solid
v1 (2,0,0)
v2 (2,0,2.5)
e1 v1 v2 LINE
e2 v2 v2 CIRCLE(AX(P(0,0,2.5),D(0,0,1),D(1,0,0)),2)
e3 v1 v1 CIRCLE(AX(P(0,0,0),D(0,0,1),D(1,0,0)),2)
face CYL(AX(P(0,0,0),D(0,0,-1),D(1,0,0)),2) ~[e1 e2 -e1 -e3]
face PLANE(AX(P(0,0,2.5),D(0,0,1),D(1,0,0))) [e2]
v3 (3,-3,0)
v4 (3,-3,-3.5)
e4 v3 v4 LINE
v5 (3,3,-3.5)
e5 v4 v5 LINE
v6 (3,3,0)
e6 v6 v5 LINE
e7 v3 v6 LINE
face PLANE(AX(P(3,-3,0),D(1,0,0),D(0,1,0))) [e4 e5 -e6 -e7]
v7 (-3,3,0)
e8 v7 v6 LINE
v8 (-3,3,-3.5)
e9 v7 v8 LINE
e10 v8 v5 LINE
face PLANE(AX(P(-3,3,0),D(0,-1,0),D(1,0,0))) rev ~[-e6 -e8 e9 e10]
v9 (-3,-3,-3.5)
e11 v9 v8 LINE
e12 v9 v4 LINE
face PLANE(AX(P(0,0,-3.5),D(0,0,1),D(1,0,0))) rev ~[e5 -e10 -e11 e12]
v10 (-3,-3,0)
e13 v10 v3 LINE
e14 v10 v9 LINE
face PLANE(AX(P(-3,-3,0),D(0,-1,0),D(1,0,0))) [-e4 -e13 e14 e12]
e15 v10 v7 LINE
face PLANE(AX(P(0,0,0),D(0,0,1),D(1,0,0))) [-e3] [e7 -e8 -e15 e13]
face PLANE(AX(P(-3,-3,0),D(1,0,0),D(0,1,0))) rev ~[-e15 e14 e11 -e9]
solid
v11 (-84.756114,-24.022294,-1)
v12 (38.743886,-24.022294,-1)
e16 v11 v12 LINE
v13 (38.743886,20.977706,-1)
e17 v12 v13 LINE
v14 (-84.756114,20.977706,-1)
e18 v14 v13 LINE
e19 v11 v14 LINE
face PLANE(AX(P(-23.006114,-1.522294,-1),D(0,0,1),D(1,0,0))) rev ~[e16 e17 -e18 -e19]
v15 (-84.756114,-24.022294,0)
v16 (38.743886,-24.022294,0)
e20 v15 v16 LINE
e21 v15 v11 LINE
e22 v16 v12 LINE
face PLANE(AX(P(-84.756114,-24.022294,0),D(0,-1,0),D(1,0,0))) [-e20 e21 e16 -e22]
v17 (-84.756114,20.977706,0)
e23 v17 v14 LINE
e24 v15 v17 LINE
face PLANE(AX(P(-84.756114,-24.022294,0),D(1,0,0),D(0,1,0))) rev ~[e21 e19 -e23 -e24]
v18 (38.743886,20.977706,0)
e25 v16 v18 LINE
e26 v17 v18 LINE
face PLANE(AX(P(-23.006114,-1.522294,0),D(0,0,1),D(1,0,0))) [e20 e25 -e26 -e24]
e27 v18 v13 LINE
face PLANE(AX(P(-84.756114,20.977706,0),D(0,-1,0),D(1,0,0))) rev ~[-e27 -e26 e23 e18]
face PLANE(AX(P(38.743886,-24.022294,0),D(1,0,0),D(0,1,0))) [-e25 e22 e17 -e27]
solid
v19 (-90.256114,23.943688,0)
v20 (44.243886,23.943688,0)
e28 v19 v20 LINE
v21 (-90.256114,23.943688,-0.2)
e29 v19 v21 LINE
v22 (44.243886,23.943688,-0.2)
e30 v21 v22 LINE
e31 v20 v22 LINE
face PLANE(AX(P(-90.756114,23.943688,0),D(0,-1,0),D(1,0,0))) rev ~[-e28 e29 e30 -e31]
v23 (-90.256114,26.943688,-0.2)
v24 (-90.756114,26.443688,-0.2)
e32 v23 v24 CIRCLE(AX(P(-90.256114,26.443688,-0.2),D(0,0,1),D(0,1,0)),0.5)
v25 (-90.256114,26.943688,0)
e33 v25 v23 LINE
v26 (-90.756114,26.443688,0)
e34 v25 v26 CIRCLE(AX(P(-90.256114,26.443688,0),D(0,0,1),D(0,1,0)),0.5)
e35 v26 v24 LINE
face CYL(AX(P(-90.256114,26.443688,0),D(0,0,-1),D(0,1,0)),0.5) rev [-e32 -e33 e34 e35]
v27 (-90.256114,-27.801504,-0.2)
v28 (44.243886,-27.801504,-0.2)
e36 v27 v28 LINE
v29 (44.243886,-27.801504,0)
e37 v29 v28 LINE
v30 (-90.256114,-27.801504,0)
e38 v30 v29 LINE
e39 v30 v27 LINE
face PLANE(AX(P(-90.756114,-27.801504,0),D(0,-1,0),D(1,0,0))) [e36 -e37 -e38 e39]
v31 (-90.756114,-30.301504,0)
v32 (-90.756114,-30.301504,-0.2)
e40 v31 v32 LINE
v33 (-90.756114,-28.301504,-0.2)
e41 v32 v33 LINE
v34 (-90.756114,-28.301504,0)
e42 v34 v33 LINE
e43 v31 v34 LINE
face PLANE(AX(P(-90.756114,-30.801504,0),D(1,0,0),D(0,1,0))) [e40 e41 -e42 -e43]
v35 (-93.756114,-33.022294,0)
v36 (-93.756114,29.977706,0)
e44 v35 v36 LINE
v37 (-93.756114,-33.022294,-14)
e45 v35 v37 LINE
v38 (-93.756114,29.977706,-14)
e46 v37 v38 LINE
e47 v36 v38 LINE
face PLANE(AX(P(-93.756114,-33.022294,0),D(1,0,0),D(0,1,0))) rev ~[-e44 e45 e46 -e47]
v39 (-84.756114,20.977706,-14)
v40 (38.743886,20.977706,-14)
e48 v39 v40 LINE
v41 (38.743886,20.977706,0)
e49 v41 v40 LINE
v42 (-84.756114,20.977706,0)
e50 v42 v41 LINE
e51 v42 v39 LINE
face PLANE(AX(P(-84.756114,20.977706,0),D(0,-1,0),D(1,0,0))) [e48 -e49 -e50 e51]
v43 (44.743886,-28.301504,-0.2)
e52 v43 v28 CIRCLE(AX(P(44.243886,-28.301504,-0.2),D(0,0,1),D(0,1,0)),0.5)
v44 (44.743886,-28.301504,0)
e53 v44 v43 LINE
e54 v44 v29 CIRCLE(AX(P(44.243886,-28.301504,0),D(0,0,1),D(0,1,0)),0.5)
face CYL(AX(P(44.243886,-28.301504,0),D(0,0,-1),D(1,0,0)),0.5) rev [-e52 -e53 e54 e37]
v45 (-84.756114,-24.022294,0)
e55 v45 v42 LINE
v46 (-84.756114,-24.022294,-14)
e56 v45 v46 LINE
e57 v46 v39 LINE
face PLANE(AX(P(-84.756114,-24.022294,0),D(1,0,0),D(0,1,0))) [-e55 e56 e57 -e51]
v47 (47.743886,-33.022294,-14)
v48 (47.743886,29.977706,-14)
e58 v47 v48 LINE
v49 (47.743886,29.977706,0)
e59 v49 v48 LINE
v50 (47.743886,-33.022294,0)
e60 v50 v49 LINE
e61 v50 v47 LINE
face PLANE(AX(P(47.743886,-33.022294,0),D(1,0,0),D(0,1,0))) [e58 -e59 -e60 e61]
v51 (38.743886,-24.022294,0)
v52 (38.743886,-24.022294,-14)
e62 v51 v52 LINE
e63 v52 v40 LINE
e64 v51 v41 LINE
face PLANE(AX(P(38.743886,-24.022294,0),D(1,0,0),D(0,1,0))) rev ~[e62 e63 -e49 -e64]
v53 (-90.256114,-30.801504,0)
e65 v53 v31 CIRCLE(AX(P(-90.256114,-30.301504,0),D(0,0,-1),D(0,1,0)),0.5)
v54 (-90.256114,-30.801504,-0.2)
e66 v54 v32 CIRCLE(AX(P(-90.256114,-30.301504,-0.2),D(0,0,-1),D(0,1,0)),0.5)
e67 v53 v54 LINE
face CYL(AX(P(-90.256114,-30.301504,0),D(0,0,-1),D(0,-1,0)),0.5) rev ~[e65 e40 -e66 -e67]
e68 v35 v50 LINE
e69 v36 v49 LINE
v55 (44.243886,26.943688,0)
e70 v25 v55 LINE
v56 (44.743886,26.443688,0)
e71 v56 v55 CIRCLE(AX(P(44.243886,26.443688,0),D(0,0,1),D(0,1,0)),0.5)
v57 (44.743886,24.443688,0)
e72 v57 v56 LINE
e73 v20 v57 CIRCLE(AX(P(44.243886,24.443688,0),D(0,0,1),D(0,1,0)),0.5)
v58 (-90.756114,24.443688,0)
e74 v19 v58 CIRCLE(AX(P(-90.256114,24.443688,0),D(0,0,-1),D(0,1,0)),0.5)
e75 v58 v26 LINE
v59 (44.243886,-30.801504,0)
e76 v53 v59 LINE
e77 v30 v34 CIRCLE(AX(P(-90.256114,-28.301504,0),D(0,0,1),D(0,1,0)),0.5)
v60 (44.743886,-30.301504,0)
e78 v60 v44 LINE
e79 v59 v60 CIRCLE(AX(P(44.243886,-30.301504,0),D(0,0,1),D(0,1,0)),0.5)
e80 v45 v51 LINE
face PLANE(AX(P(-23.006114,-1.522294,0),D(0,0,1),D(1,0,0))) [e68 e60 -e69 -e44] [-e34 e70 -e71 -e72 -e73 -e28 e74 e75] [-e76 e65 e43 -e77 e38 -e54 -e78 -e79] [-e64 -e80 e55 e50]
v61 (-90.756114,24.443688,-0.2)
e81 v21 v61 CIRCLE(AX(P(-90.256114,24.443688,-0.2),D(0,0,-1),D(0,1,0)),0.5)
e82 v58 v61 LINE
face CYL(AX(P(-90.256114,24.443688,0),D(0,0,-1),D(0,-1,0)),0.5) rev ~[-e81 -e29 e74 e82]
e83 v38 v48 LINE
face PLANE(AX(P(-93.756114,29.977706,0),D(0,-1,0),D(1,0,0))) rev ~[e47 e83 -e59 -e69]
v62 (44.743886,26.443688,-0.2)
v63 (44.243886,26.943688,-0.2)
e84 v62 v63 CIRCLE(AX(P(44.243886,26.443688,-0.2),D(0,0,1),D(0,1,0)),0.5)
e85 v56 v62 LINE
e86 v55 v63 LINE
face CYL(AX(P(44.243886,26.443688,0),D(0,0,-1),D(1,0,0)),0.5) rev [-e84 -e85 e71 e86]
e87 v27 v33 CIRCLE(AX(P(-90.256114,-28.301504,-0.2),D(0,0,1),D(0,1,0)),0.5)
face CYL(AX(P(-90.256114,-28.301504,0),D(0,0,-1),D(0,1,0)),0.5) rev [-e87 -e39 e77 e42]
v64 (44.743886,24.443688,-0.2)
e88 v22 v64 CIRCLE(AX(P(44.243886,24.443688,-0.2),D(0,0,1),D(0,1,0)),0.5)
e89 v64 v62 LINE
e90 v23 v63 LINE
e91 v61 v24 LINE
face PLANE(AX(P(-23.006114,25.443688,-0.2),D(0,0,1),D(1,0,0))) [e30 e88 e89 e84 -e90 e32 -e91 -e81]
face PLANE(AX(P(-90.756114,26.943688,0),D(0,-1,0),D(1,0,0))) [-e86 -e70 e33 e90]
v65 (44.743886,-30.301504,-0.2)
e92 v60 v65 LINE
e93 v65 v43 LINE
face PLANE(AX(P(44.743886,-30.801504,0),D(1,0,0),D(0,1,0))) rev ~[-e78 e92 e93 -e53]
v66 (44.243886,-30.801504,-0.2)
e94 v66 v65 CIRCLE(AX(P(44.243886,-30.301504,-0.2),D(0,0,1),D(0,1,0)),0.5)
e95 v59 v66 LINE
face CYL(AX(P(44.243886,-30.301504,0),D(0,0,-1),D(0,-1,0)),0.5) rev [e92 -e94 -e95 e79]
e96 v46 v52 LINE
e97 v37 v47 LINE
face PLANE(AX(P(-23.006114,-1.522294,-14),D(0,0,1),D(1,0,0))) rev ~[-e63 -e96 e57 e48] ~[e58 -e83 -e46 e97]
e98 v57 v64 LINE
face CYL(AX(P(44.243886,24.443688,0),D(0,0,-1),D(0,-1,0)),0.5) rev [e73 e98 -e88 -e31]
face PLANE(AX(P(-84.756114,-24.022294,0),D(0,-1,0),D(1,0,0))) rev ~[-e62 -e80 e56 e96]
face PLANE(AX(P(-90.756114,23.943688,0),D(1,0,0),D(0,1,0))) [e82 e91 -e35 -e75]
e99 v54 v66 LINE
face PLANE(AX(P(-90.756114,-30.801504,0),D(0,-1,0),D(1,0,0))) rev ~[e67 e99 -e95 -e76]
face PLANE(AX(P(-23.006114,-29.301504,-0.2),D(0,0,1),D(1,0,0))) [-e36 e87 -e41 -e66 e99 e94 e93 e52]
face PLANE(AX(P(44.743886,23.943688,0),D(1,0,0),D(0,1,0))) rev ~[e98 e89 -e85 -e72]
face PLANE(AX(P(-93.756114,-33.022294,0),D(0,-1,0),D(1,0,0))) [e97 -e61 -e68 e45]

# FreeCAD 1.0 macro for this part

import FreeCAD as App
import Part
import Sketcher
Q = App.Units.Quantity


def edges_at(feature, points):
    """Names of the edges that pass closest to the given points."""
    edges = feature.Shape.Edges
    near = lambda p: min(range(len(edges)), key=lambda i: edges[i].distToShape(Part.Vertex(*p))[0])
    return sorted({f"Edge{near(p) + 1}" for p in points})

doc = App.newDocument("Part")
body = doc.addObject("PartDesign::Body", "Body")

# Sketch on XY plane
sketch1 = body.newObject("Sketcher::SketchObject", "Sketch")
sketch1.AttachmentSupport = (doc.getObject("XY_Plane"), [""])
sketch1.MapMode = "FlatFace"
sketch1.addGeometry(Part.LineSegment(App.Vector(-3, 3, 0), App.Vector(-3, -3, 0)), False)
sketch1.addGeometry(Part.LineSegment(App.Vector(-3, -3, 0), App.Vector(3, -3, 0)), False)
sketch1.addGeometry(Part.LineSegment(App.Vector(3, -3, 0), App.Vector(3, 3, 0)), False)
sketch1.addGeometry(Part.LineSegment(App.Vector(3, 3, 0), App.Vector(-3, 3, 0)), False)
sketch1.addConstraint(Sketcher.Constraint("Coincident", 0, 2, 1, 1))
sketch1.addConstraint(Sketcher.Constraint("Coincident", 1, 2, 2, 1))
sketch1.addConstraint(Sketcher.Constraint("Coincident", 2, 2, 3, 1))
sketch1.addConstraint(Sketcher.Constraint("Coincident", 3, 2, 0, 1))
sketch1.addConstraint(Sketcher.Constraint("Vertical", 0))
sketch1.addConstraint(Sketcher.Constraint("Horizontal", 1))
sketch1.addConstraint(Sketcher.Constraint("Vertical", 2))
sketch1.addConstraint(Sketcher.Constraint("Horizontal", 3))
sketch1.addConstraint(Sketcher.Constraint("Symmetric", 0, 2, 2, 2, -1, 1))
sketch1.addConstraint(Sketcher.Constraint("Equal", 3, 0))
sketch1.addConstraint(Sketcher.Constraint("DistanceX", 1, 1, 1, 2, Q("6 mm")))
pad1 = body.newObject("PartDesign::Pad", "Pad")
pad1.Profile = sketch1
pad1.Length = 3.5
pad1.Reversed = True

# Sketch on XY plane
sketch2 = body.newObject("Sketcher::SketchObject", "Sketch001")
sketch2.AttachmentSupport = (doc.getObject("XY_Plane"), [""])
sketch2.MapMode = "FlatFace"
sketch2.addGeometry(Part.Circle(App.Vector(0, 0, 0), App.Vector(0, 0, 1), 2), False)
sketch2.addConstraint(Sketcher.Constraint("Coincident", 0, 3, -1, 1))
sketch2.addConstraint(Sketcher.Constraint("Diameter", 0, Q("4 mm")))
pad2 = body.newObject("PartDesign::Pad", "Pad001")
pad2.Profile = sketch2
pad2.Length = 2.5
body2 = doc.addObject("PartDesign::Body", "Body001")

# Sketch on XY plane
sketch3 = body2.newObject("Sketcher::SketchObject", "Sketch002")
sketch3.AttachmentSupport = (doc.getObject("XY_Plane001"), [""])
sketch3.MapMode = "FlatFace"
sketch3.addGeometry(Part.LineSegment(App.Vector(-85, 21, 0), App.Vector(-85, -24, 0)), False)
sketch3.addGeometry(Part.LineSegment(App.Vector(-85, -24, 0), App.Vector(39, -24, 0)), False)
sketch3.addGeometry(Part.LineSegment(App.Vector(39, -24, 0), App.Vector(39, 21, 0)), False)
sketch3.addGeometry(Part.LineSegment(App.Vector(39, 21, 0), App.Vector(-85, 21, 0)), False)
sketch3.addConstraint(Sketcher.Constraint("Coincident", 0, 2, 1, 1))
sketch3.addConstraint(Sketcher.Constraint("Coincident", 1, 2, 2, 1))
sketch3.addConstraint(Sketcher.Constraint("Coincident", 2, 2, 3, 1))
sketch3.addConstraint(Sketcher.Constraint("Coincident", 3, 2, 0, 1))
sketch3.addConstraint(Sketcher.Constraint("Vertical", 0))
sketch3.addConstraint(Sketcher.Constraint("Horizontal", 1))
sketch3.addConstraint(Sketcher.Constraint("Vertical", 2))
sketch3.addConstraint(Sketcher.Constraint("Horizontal", 3))
sketch3.addConstraint(Sketcher.Constraint("DistanceY", 0, 2, 0, 1, Q("45 mm")))
sketch3.addConstraint(Sketcher.Constraint("DistanceX", 1, 1, 1, 2, Q("123.5 mm")))
sketch3.addConstraint(Sketcher.Constraint("DistanceX", 0, 2, -1, 1, Q("84.756114 mm")))
sketch3.addConstraint(Sketcher.Constraint("DistanceY", 0, 2, -1, 1, Q("24.022294 mm")))
pad3 = body2.newObject("PartDesign::Pad", "Pad002")
pad3.Profile = sketch3
pad3.Length = 14
pad3.Reversed = True

# Sketch on XY plane
sketch4 = body2.newObject("Sketcher::SketchObject", "Sketch003")
sketch4.AttachmentSupport = (doc.getObject("XY_Plane001"), [""])
sketch4.MapMode = "FlatFace"
sketch4.addGeometry(Part.LineSegment(App.Vector(-94, 30, 0), App.Vector(-94, -33, 0)), False)
sketch4.addGeometry(Part.LineSegment(App.Vector(-94, -33, 0), App.Vector(48, -33, 0)), False)
sketch4.addGeometry(Part.LineSegment(App.Vector(48, -33, 0), App.Vector(48, 30, 0)), False)
sketch4.addGeometry(Part.LineSegment(App.Vector(48, 30, 0), App.Vector(-94, 30, 0)), False)
sketch4.addGeometry(Part.LineSegment(App.Vector(39, -24, 0), App.Vector(-85, -24, 0)), False)
sketch4.addGeometry(Part.LineSegment(App.Vector(-85, -24, 0), App.Vector(-85, 21, 0)), False)
sketch4.addGeometry(Part.LineSegment(App.Vector(-85, 21, 0), App.Vector(39, 21, 0)), False)
sketch4.addGeometry(Part.LineSegment(App.Vector(39, 21, 0), App.Vector(39, -24, 0)), False)
sketch4.addConstraint(Sketcher.Constraint("Coincident", 0, 2, 1, 1))
sketch4.addConstraint(Sketcher.Constraint("Coincident", 1, 2, 2, 1))
sketch4.addConstraint(Sketcher.Constraint("Coincident", 2, 2, 3, 1))
sketch4.addConstraint(Sketcher.Constraint("Coincident", 3, 2, 0, 1))
sketch4.addConstraint(Sketcher.Constraint("Coincident", 4, 2, 5, 1))
sketch4.addConstraint(Sketcher.Constraint("Coincident", 5, 2, 6, 1))
sketch4.addConstraint(Sketcher.Constraint("Coincident", 6, 2, 7, 1))
sketch4.addConstraint(Sketcher.Constraint("Coincident", 7, 2, 4, 1))
sketch4.addConstraint(Sketcher.Constraint("Vertical", 0))
sketch4.addConstraint(Sketcher.Constraint("Horizontal", 1))
sketch4.addConstraint(Sketcher.Constraint("Vertical", 2))
sketch4.addConstraint(Sketcher.Constraint("Horizontal", 3))
sketch4.addConstraint(Sketcher.Constraint("Horizontal", 4))
sketch4.addConstraint(Sketcher.Constraint("Vertical", 5))
sketch4.addConstraint(Sketcher.Constraint("Horizontal", 6))
sketch4.addConstraint(Sketcher.Constraint("Vertical", 7))
sketch4.addConstraint(Sketcher.Constraint("DistanceY", 0, 2, 0, 1, Q("63 mm")))
sketch4.addConstraint(Sketcher.Constraint("DistanceY", 5, 1, 5, 2, Q("45 mm")))
sketch4.addConstraint(Sketcher.Constraint("DistanceX", 1, 1, 1, 2, Q("141.5 mm")))
sketch4.addConstraint(Sketcher.Constraint("DistanceX", 4, 2, 4, 1, Q("123.5 mm")))
sketch4.addConstraint(Sketcher.Constraint("DistanceX", 0, 2, 4, 2, Q("9 mm")))
sketch4.addConstraint(Sketcher.Constraint("DistanceY", 0, 2, 4, 2, Q("9 mm")))
sketch4.addConstraint(Sketcher.Constraint("DistanceX", 0, 2, -1, 1, Q("93.756114 mm")))
sketch4.addConstraint(Sketcher.Constraint("DistanceY", 0, 2, -1, 1, Q("33.022294 mm")))
pad4 = body2.newObject("PartDesign::Pad", "Pad003")
pad4.Profile = sketch4
pad4.Length = 14
pad4.Reversed = True

# Sketch on XY plane
sketch5 = body2.newObject("Sketcher::SketchObject", "Sketch004")
sketch5.AttachmentSupport = (doc.getObject("XY_Plane001"), [""])
sketch5.MapMode = "FlatFace"
sketch5.addGeometry(Part.LineSegment(App.Vector(-85, 21, 0), App.Vector(-85, -24, 0)), False)
sketch5.addGeometry(Part.LineSegment(App.Vector(-85, -24, 0), App.Vector(39, -24, 0)), False)
sketch5.addGeometry(Part.LineSegment(App.Vector(39, -24, 0), App.Vector(39, 21, 0)), False)
sketch5.addGeometry(Part.LineSegment(App.Vector(39, 21, 0), App.Vector(-85, 21, 0)), False)
sketch5.addConstraint(Sketcher.Constraint("Coincident", 0, 2, 1, 1))
sketch5.addConstraint(Sketcher.Constraint("Coincident", 1, 2, 2, 1))
sketch5.addConstraint(Sketcher.Constraint("Coincident", 2, 2, 3, 1))
sketch5.addConstraint(Sketcher.Constraint("Coincident", 3, 2, 0, 1))
sketch5.addConstraint(Sketcher.Constraint("Vertical", 0))
sketch5.addConstraint(Sketcher.Constraint("Horizontal", 1))
sketch5.addConstraint(Sketcher.Constraint("Vertical", 2))
sketch5.addConstraint(Sketcher.Constraint("Horizontal", 3))
sketch5.addConstraint(Sketcher.Constraint("DistanceY", 0, 2, 0, 1, Q("45 mm")))
sketch5.addConstraint(Sketcher.Constraint("DistanceX", 1, 1, 1, 2, Q("123.5 mm")))
sketch5.addConstraint(Sketcher.Constraint("DistanceX", 0, 2, -1, 1, Q("84.756114 mm")))
sketch5.addConstraint(Sketcher.Constraint("DistanceY", 0, 2, -1, 1, Q("24.022294 mm")))
pocket1 = body2.newObject("PartDesign::Pocket", "Pocket")
pocket1.Profile = sketch5
pocket1.Length = 14

# Sketch on XY plane
sketch6 = body2.newObject("Sketcher::SketchObject", "Sketch005")
sketch6.AttachmentSupport = (doc.getObject("XY_Plane001"), [""])
sketch6.MapMode = "FlatFace"
sketch6.addGeometry(Part.LineSegment(App.Vector(-90.8, 26.9, 0), App.Vector(-90.8, 23.9, 0)), False)
sketch6.addGeometry(Part.LineSegment(App.Vector(-90.8, 23.9, 0), App.Vector(44.7, 23.9, 0)), False)
sketch6.addGeometry(Part.LineSegment(App.Vector(44.7, 23.9, 0), App.Vector(44.7, 26.9, 0)), False)
sketch6.addGeometry(Part.LineSegment(App.Vector(44.7, 26.9, 0), App.Vector(-90.8, 26.9, 0)), False)
sketch6.addGeometry(Part.LineSegment(App.Vector(-90.8, -27.8, 0), App.Vector(-90.8, -30.8, 0)), False)
sketch6.addGeometry(Part.LineSegment(App.Vector(-90.8, -30.8, 0), App.Vector(44.7, -30.8, 0)), False)
sketch6.addGeometry(Part.LineSegment(App.Vector(44.7, -30.8, 0), App.Vector(44.7, -27.8, 0)), False)
sketch6.addGeometry(Part.LineSegment(App.Vector(44.7, -27.8, 0), App.Vector(-90.8, -27.8, 0)), False)
sketch6.addConstraint(Sketcher.Constraint("Coincident", 0, 2, 1, 1))
sketch6.addConstraint(Sketcher.Constraint("Coincident", 1, 2, 2, 1))
sketch6.addConstraint(Sketcher.Constraint("Coincident", 2, 2, 3, 1))
sketch6.addConstraint(Sketcher.Constraint("Coincident", 3, 2, 0, 1))
sketch6.addConstraint(Sketcher.Constraint("Coincident", 4, 2, 5, 1))
sketch6.addConstraint(Sketcher.Constraint("Coincident", 5, 2, 6, 1))
sketch6.addConstraint(Sketcher.Constraint("Coincident", 6, 2, 7, 1))
sketch6.addConstraint(Sketcher.Constraint("Coincident", 7, 2, 4, 1))
sketch6.addConstraint(Sketcher.Constraint("Vertical", 0))
sketch6.addConstraint(Sketcher.Constraint("Horizontal", 1))
sketch6.addConstraint(Sketcher.Constraint("Vertical", 2))
sketch6.addConstraint(Sketcher.Constraint("Horizontal", 3))
sketch6.addConstraint(Sketcher.Constraint("Vertical", 4))
sketch6.addConstraint(Sketcher.Constraint("Horizontal", 5))
sketch6.addConstraint(Sketcher.Constraint("Vertical", 6))
sketch6.addConstraint(Sketcher.Constraint("Horizontal", 7))
sketch6.addConstraint(Sketcher.Constraint("Vertical", 3, 2, 4, 2))
sketch6.addConstraint(Sketcher.Constraint("Vertical", 2, 2, 5, 2))
sketch6.addConstraint(Sketcher.Constraint("Equal", 2, 4))
sketch6.addConstraint(Sketcher.Constraint("DistanceY", 0, 2, 0, 1, Q("3 mm")))
sketch6.addConstraint(Sketcher.Constraint("DistanceX", 1, 1, 1, 2, Q("135.5 mm")))
sketch6.addConstraint(Sketcher.Constraint("DistanceY", -1, 1, 0, 2, Q("23.943688 mm")))
sketch6.addConstraint(Sketcher.Constraint("DistanceX", 0, 2, -1, 1, Q("90.756114 mm")))
sketch6.addConstraint(Sketcher.Constraint("DistanceY", 4, 2, -1, 1, Q("30.801504 mm")))
pocket2 = body2.newObject("PartDesign::Pocket", "Pocket001")
pocket2.Profile = sketch6
pocket2.Length = 0.2
doc.recompute()

fillet = body2.newObject("PartDesign::Fillet", "Fillet")
fillet.Base = (pocket2, edges_at(pocket2, [
    (-90.756, 26.944, -0.1),
    (-90.756, 23.944, -0.1),
    (44.744, 23.944, -0.1),
    (44.744, 26.944, -0.1),
    (-90.756, -27.802, -0.1),
    (-90.756, -30.802, -0.1),
    (44.744, -27.802, -0.1),
    (44.744, -30.802, -0.1),
]))
fillet.Radius = 0.5
body3 = doc.addObject("PartDesign::Body", "Body002")

# Sketch on XY plane
sketch7 = body3.newObject("Sketcher::SketchObject", "Sketch006")
sketch7.AttachmentSupport = (doc.getObject("XY_Plane002"), [""])
sketch7.MapMode = "FlatFace"
sketch7.addGeometry(Part.LineSegment(App.Vector(-85, 21, 0), App.Vector(-85, -24, 0)), False)
sketch7.addGeometry(Part.LineSegment(App.Vector(-85, -24, 0), App.Vector(39, -24, 0)), False)
sketch7.addGeometry(Part.LineSegment(App.Vector(39, -24, 0), App.Vector(39, 21, 0)), False)
sketch7.addGeometry(Part.LineSegment(App.Vector(39, 21, 0), App.Vector(-85, 21, 0)), False)
sketch7.addConstraint(Sketcher.Constraint("Coincident", 0, 2, 1, 1))
sketch7.addConstraint(Sketcher.Constraint("Coincident", 1, 2, 2, 1))
sketch7.addConstraint(Sketcher.Constraint("Coincident", 2, 2, 3, 1))
sketch7.addConstraint(Sketcher.Constraint("Coincident", 3, 2, 0, 1))
sketch7.addConstraint(Sketcher.Constraint("Vertical", 0))
sketch7.addConstraint(Sketcher.Constraint("Horizontal", 1))
sketch7.addConstraint(Sketcher.Constraint("Vertical", 2))
sketch7.addConstraint(Sketcher.Constraint("Horizontal", 3))
sketch7.addConstraint(Sketcher.Constraint("DistanceY", 0, 2, 0, 1, Q("45 mm")))
sketch7.addConstraint(Sketcher.Constraint("DistanceX", 1, 1, 1, 2, Q("123.5 mm")))
sketch7.addConstraint(Sketcher.Constraint("DistanceX", 0, 2, -1, 1, Q("84.756114 mm")))
sketch7.addConstraint(Sketcher.Constraint("DistanceY", 0, 2, -1, 1, Q("24.022294 mm")))
pad5 = body3.newObject("PartDesign::Pad", "Pad004")
pad5.Profile = sketch7
pad5.Length = 1
pad5.Reversed = True

doc.recompute()
